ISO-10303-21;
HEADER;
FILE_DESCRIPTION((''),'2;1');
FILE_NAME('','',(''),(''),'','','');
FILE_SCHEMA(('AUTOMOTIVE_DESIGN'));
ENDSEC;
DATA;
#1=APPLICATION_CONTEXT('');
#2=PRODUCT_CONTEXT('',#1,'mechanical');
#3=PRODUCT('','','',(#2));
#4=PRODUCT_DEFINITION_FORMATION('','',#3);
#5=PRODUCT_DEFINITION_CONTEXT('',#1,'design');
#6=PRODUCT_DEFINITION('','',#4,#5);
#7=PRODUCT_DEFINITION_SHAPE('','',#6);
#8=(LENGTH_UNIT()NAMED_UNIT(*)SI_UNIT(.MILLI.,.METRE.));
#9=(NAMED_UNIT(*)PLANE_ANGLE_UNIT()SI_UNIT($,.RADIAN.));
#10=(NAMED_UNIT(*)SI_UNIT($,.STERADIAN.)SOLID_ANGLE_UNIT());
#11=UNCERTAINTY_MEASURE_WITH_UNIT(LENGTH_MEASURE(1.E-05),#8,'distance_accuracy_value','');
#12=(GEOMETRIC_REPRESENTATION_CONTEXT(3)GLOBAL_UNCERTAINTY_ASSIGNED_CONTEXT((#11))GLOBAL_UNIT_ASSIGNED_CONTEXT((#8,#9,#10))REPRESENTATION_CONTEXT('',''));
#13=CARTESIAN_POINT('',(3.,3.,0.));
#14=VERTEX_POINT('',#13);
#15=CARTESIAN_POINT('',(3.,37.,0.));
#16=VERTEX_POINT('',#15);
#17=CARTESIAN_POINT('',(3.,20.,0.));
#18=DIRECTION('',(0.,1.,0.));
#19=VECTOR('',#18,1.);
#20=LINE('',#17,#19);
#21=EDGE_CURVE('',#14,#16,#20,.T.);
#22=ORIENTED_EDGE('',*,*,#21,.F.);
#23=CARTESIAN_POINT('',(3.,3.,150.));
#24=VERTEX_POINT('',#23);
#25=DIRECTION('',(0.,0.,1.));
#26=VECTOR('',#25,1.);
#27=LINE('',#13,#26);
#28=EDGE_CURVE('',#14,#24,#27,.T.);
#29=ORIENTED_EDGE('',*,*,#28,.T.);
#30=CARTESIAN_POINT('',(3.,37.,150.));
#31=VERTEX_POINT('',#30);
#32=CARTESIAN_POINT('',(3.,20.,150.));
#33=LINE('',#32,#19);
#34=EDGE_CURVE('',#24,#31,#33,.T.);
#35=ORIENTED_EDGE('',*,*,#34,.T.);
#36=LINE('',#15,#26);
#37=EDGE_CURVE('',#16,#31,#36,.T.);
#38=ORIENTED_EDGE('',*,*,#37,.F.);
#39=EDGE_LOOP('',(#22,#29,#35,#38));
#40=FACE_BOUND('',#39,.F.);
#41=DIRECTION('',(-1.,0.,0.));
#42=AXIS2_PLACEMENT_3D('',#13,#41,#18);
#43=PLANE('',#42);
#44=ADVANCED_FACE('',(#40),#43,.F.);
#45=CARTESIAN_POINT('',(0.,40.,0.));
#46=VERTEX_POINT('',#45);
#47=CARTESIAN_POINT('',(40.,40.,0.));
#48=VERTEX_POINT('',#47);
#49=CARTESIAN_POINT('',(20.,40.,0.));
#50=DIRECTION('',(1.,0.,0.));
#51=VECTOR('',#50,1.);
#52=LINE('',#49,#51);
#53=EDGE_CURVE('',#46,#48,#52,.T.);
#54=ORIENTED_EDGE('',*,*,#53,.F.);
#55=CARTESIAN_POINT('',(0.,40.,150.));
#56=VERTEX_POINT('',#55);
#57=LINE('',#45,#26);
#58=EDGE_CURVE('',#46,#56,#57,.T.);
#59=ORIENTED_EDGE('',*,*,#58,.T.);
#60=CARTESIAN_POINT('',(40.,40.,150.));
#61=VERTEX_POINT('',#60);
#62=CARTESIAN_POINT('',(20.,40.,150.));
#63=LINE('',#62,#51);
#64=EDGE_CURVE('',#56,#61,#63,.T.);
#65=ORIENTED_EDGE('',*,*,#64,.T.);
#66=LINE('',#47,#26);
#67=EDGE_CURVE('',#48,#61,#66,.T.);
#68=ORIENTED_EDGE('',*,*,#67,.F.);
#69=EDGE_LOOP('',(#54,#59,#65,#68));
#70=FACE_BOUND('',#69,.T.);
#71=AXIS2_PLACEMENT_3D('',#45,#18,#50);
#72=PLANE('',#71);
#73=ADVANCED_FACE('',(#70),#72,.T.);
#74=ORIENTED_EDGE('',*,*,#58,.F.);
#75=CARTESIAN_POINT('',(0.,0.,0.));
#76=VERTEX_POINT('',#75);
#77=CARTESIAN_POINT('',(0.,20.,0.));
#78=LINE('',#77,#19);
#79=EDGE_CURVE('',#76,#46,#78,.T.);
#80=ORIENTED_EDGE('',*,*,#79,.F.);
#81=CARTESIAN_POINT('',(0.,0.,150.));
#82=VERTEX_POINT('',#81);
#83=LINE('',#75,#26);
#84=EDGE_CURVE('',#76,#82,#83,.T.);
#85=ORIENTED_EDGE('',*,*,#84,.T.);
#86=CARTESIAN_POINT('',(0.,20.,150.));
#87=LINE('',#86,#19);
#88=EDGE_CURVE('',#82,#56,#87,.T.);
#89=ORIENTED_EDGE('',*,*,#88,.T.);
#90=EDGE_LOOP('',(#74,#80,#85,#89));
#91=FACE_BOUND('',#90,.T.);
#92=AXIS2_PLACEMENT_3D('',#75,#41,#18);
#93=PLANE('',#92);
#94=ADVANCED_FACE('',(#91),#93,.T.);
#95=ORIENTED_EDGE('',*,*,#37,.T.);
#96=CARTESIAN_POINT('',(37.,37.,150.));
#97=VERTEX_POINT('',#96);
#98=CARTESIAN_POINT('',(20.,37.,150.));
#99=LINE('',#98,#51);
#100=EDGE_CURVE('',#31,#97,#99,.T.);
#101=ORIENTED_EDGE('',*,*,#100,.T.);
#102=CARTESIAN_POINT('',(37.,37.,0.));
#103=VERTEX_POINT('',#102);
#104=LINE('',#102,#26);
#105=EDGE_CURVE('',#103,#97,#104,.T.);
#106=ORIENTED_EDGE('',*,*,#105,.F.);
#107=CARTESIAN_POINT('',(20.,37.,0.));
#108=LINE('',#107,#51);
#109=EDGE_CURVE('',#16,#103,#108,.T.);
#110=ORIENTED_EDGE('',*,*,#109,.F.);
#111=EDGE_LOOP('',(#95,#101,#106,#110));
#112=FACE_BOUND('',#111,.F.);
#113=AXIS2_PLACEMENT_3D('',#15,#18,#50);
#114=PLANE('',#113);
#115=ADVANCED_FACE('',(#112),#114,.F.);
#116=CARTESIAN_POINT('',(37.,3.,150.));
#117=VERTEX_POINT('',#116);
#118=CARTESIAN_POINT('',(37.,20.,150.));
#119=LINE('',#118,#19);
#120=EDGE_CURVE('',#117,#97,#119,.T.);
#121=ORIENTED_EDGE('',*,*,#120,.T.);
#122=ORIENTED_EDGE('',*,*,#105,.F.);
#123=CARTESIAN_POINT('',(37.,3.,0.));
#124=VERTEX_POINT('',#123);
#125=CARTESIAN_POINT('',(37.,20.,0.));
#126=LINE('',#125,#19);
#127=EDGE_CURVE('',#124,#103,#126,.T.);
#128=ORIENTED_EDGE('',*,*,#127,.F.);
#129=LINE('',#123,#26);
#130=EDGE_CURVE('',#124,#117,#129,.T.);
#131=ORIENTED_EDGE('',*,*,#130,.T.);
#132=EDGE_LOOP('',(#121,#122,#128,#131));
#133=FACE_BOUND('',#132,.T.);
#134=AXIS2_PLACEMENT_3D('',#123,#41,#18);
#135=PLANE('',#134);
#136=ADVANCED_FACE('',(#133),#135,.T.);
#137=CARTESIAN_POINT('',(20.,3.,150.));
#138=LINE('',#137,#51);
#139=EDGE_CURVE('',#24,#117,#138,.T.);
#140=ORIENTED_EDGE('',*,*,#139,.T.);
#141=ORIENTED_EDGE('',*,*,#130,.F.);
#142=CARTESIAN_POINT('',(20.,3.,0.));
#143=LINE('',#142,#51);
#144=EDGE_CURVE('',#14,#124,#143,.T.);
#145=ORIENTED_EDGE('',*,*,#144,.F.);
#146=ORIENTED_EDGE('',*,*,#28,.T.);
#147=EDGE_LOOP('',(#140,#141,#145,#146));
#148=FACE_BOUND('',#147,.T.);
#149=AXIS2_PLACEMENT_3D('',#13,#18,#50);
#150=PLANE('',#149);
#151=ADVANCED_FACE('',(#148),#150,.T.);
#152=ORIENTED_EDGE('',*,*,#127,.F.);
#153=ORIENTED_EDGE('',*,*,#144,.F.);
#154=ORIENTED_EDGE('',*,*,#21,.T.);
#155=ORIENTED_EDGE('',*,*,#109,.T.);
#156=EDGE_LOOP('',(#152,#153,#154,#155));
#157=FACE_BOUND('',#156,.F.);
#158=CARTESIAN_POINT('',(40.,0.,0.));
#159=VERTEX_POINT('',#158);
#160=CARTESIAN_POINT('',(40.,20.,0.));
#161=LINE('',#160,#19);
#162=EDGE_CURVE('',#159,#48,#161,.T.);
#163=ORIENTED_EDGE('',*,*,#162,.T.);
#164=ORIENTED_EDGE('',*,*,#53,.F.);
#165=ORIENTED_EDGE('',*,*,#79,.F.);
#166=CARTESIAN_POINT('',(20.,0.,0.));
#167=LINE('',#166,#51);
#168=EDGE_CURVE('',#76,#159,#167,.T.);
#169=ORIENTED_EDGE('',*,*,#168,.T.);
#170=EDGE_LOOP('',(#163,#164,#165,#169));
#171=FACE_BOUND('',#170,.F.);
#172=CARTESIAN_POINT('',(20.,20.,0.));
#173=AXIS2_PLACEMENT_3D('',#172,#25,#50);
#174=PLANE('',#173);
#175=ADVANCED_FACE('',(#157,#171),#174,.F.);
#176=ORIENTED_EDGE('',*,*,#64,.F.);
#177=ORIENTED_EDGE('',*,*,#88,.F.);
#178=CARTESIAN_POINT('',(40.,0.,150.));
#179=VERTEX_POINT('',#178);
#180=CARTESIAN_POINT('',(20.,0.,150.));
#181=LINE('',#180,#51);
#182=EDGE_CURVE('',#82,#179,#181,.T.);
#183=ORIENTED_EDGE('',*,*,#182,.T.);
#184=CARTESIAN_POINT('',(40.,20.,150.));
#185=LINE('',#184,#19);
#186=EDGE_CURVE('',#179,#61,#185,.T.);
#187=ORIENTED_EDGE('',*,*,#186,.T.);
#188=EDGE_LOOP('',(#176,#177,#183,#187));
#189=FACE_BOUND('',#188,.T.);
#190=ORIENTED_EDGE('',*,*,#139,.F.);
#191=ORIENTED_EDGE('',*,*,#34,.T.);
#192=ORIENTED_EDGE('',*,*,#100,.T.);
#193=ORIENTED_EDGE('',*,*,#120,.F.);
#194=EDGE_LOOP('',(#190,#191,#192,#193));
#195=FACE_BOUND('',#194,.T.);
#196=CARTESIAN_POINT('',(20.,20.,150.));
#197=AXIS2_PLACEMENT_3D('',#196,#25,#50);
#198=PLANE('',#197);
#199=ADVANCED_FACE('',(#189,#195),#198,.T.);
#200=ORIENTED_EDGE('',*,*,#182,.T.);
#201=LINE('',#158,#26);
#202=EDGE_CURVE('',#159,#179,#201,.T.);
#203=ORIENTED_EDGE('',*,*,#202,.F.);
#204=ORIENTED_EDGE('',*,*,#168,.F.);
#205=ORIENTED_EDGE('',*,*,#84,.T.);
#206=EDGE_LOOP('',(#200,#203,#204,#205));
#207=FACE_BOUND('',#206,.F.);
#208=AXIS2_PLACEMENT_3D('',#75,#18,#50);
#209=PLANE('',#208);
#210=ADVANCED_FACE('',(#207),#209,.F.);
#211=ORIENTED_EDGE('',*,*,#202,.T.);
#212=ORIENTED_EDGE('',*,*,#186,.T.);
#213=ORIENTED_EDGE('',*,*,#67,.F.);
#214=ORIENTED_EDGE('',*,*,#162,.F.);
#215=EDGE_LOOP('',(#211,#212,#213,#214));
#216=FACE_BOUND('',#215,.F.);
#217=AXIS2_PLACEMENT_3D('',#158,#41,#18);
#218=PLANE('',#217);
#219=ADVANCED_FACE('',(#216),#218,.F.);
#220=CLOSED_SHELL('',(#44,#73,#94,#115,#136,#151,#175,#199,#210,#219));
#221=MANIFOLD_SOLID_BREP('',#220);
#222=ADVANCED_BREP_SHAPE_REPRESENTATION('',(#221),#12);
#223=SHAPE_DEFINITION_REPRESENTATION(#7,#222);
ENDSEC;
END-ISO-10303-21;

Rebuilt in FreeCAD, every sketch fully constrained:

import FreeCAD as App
import Part
import Sketcher


def add_polygon(sketch, points):
    """Adds a closed chain of lines whose ends are joined by coincident constraints."""
    first, n = sketch.GeometryCount, len(points)
    for a, b in zip(points, points[1:] + points[:1]):
        sketch.addGeometry(Part.LineSegment(App.Vector(*a, 0), App.Vector(*b, 0)), False)
    for i in range(n):
        sketch.addConstraint(Sketcher.Constraint("Coincident", first + i, 2, first + (i + 1) % n, 1))

doc = App.newDocument("Part")
body = doc.addObject("PartDesign::Body", "Body")

sketch1 = doc.addObject("Sketcher::SketchObject", "Sketch")
body.addObject(sketch1)
sketch1.AttachmentSupport = (doc.XY_Plane, [""])
sketch1.MapMode = "FlatFace"
add_polygon(sketch1, [(0, 40), (0, 0), (40, 0), (40, 40)])
add_polygon(sketch1, [(37, 3), (3, 3), (3, 37), (37, 37)])
sketch1.addConstraint([
    Sketcher.Constraint("Vertical", 0),
    Sketcher.Constraint("Horizontal", 1),
    Sketcher.Constraint("Vertical", 2),
    Sketcher.Constraint("Horizontal", 3),
    Sketcher.Constraint("Horizontal", 4),
    Sketcher.Constraint("Vertical", 5),
    Sketcher.Constraint("Horizontal", 6),
    Sketcher.Constraint("Vertical", 7),
    Sketcher.Constraint("Coincident", 0, 2, -1, 1),
    Sketcher.Constraint("Equal", 3, 0),
    Sketcher.Constraint("Equal", 6, 5),
    Sketcher.Constraint("DistanceX", 1, 1, 1, 2, 40.0),
    Sketcher.Constraint("DistanceX", 4, 2, 4, 1, 34.0),
    Sketcher.Constraint("DistanceX", -1, 1, 4, 2, 3.0),
    Sketcher.Constraint("DistanceY", -1, 1, 4, 2, 3.0),
])
pad1 = doc.addObject("PartDesign::Pad", "Pad")
body.addObject(pad1)
pad1.Profile = sketch1
pad1.Length = 150

doc.recompute()
